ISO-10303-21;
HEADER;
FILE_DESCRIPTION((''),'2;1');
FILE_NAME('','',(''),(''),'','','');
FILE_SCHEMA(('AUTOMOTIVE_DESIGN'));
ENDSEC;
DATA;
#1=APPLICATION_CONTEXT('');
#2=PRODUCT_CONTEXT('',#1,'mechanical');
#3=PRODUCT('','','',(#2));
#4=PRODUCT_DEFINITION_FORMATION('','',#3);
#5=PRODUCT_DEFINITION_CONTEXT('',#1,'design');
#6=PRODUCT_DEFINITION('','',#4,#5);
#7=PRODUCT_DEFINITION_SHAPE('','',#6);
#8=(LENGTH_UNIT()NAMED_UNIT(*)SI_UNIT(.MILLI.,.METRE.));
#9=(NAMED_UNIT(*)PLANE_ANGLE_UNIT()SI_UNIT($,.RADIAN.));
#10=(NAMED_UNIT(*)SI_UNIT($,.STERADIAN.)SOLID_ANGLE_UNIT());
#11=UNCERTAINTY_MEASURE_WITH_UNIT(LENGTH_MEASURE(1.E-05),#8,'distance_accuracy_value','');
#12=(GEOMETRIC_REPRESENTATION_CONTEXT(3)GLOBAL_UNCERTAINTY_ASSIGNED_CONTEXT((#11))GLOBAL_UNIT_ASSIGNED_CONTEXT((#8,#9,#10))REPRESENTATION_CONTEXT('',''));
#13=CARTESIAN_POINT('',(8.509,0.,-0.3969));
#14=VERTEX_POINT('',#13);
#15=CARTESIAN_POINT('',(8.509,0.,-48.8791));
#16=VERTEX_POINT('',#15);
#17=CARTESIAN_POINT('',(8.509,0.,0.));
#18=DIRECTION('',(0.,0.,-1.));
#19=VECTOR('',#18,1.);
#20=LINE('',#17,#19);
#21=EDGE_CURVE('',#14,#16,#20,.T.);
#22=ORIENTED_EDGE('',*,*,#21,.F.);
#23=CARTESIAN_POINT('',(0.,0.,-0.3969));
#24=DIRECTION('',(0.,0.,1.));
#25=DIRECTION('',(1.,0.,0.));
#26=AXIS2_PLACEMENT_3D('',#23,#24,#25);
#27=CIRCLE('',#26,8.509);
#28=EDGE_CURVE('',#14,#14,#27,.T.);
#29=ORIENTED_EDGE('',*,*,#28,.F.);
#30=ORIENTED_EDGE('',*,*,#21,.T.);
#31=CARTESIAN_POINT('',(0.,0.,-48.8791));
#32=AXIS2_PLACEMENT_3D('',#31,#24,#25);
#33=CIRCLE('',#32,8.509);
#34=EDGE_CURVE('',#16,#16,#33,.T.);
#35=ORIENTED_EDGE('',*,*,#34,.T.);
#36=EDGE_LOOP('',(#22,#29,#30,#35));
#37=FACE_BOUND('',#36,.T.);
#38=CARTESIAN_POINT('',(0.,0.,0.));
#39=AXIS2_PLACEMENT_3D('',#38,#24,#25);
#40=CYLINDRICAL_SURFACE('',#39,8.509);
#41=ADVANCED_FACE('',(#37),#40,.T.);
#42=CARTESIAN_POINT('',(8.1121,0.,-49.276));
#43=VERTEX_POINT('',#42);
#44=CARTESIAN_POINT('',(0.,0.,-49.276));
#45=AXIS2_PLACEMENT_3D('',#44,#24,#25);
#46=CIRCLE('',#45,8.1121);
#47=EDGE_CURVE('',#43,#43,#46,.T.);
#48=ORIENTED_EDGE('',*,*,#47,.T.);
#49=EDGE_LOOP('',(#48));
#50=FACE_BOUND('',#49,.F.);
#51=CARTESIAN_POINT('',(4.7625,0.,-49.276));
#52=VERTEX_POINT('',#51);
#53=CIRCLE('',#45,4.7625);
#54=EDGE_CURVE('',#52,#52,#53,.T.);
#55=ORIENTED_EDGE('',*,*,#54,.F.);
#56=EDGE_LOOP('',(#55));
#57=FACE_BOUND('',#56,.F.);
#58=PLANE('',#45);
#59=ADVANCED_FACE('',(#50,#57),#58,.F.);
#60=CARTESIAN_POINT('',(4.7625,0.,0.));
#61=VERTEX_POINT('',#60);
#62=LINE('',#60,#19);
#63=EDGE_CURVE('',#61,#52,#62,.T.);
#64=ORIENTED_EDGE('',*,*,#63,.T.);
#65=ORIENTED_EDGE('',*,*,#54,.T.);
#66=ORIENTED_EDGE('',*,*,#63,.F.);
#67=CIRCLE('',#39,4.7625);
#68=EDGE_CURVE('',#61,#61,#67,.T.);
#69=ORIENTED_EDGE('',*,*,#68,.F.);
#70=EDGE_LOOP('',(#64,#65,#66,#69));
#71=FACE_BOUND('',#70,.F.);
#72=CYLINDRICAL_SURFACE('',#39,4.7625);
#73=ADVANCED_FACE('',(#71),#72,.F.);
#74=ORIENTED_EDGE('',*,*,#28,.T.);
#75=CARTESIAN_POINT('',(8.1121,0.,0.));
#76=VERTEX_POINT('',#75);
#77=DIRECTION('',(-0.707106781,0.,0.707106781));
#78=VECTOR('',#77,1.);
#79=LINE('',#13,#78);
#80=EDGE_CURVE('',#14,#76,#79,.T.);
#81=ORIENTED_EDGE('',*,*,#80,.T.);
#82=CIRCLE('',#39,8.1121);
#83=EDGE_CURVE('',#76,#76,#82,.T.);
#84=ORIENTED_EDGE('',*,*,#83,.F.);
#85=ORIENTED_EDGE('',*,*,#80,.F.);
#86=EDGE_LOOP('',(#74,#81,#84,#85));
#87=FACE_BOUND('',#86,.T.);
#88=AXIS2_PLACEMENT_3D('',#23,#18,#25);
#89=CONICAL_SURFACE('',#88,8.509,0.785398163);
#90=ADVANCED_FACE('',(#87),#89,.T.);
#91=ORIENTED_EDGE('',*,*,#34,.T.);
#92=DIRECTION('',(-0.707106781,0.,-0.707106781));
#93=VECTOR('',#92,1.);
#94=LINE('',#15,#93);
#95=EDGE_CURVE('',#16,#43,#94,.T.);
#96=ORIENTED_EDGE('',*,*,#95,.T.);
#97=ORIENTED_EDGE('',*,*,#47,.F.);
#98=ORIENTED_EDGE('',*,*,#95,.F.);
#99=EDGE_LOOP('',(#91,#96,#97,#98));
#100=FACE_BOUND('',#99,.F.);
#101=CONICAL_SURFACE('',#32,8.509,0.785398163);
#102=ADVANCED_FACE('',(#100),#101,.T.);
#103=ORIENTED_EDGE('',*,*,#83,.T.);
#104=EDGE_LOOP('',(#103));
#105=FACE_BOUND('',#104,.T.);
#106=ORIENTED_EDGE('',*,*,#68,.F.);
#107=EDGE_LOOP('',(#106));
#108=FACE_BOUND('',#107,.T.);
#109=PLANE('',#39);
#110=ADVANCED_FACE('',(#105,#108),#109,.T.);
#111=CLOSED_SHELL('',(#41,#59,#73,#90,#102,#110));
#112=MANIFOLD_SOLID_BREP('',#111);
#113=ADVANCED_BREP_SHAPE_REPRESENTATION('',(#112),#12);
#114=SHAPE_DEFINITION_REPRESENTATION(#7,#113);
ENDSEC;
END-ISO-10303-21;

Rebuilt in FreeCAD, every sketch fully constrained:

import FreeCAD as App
import Part
import Sketcher

V = App.Vector
Q = App.Units.Quantity


def edges_at(feature, points):
    """Names of the edges that pass closest to the given points."""
    edges = feature.Shape.Edges
    near = lambda p: min(range(len(edges)), key=lambda i: edges[i].distToShape(Part.Vertex(*p))[0])
    return sorted({f"Edge{near(p) + 1}" for p in points})

doc = App.newDocument("Part")
body = doc.addObject("PartDesign::Body", "Body")

# Sketch on XY plane
sketch1 = body.newObject("Sketcher::SketchObject", "Sketch")
sketch1.AttachmentSupport = (doc.getObject("XY_Plane"), [""])
sketch1.MapMode = "FlatFace"
sketch1.addGeometry([
    Part.Circle(V(0, 0, 0), V(0, 0, 1), 8.5),
    Part.Circle(V(0, 0, 0), V(0, 0, 1), 4.8),
], False)
sketch1.addConstraint([
    Sketcher.Constraint("Coincident", 0, 3, -1, 1),
    Sketcher.Constraint("Coincident", 1, 3, -1, 1),
    Sketcher.Constraint("Diameter", 0, Q("0.67 in")),
    Sketcher.Constraint("Diameter", 1, Q("0.375 in")),
])
pad1 = body.newObject("PartDesign::Pad", "Pad")
pad1.Profile = sketch1
pad1.Length = Q("1.94 in")
pad1.Reversed = True
doc.recompute()

chamfer = body.newObject("PartDesign::Chamfer", "Chamfer")
chamfer.Base = (pad1, edges_at(pad1, [(-8.509, 0, 0), (-8.509, 0, -49.276)]))
chamfer.Size = Q("0.015626 in")

doc.recompute()
